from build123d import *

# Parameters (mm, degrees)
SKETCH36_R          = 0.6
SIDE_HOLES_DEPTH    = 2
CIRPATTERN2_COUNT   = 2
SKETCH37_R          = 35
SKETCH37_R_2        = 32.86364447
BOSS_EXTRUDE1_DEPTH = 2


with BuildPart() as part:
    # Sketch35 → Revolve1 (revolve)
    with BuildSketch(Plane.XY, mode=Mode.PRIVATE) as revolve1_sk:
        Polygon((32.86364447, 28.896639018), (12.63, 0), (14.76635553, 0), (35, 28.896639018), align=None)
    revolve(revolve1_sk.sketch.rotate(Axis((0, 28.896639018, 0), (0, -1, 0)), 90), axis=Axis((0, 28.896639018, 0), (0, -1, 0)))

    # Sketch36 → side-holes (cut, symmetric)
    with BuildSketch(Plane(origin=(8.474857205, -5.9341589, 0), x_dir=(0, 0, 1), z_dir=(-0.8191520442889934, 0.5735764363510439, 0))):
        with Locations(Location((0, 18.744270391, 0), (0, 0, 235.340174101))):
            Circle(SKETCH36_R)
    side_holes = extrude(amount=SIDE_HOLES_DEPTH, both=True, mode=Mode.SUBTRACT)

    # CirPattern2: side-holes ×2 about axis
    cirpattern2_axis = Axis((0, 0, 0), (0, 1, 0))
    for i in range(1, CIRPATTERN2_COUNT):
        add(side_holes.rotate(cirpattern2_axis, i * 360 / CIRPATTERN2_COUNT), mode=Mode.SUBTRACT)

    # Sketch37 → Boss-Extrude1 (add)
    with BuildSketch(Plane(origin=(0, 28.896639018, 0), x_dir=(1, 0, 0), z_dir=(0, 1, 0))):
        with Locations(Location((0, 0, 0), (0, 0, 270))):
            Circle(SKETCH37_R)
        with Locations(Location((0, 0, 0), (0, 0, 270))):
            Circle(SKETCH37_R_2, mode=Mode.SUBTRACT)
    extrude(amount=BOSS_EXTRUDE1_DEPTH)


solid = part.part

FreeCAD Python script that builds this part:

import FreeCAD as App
import Part
import Sketcher
from FreeCAD import Vector
Q = App.Units.Quantity


def add_polygon(sketch, points):
    """Adds a closed chain of lines whose ends are joined by coincident constraints."""
    first, n = sketch.GeometryCount, len(points)
    for a, b in zip(points, points[1:] + points[:1]):
        sketch.addGeometry(Part.LineSegment(App.Vector(*a, 0), App.Vector(*b, 0)), False)
    for i in range(n):
        sketch.addConstraint(Sketcher.Constraint("Coincident", first + i, 2, first + (i + 1) % n, 1))

doc = App.newDocument("Part")
body = doc.addObject("PartDesign::Body", "Body")

sketch1 = body.newObject("Sketcher::SketchObject", "Sketch")
sketch1.AttachmentSupport = (doc.getObject("XY_Plane"), [""])
sketch1.MapMode = "FlatFace"
add_polygon(sketch1, [(32.9, 28.9), (12.6, 0), (14.8, 0), (35, 28.9)])
sketch1.addConstraint([
    Sketcher.Constraint("Horizontal", 1),
    Sketcher.Constraint("Horizontal", 3),
    Sketcher.Constraint("PointOnObject", 0, 2, -1),
    Sketcher.Constraint("Parallel", 0, 2),
    Sketcher.Constraint("Angle", 0, Q("-125 deg")),
    Sketcher.Constraint("DistanceX", -1, 1, 2, 2, 35.0),
    Sketcher.Constraint("DistanceX", -1, 1, 0, 2, 12.63),
    Sketcher.Constraint("DistanceX", 1, 1, 1, 2, 2.136356),
])
revolution = body.newObject("PartDesign::Revolution", "Revolution")
revolution.Profile = sketch1
revolution.ReferenceAxis = (sketch1, ["V_Axis"])
revolution.Angle = 360

sketch2 = body.newObject("Sketcher::SketchObject", "Sketch001")
sketch2.Placement = App.Placement(Vector(8.474857, -5.934159, 0), App.Rotation(Vector(0, 0, 1), Vector(0.573576436, 0.819152044, 0), Vector(-0.819152044, 0.573576436, 0), "ZXY"))
sketch2.addGeometry(Part.Circle(Vector(0, 18.7, 0), Vector(0, 0, 1), 0.6), False)
sketch2.addConstraint([
    Sketcher.Constraint("PointOnObject", 0, 3, -2),
    Sketcher.Constraint("Diameter", 0, 1.2),
    Sketcher.Constraint("DistanceY", -1, 1, 0, 3, 18.74427),
])
pocket1 = body.newObject("PartDesign::Pocket", "Pocket")
pocket1.Profile = sketch2
pocket1.Length = 4
pocket1.Midplane = True
doc.recompute()

polarpattern = body.newObject("PartDesign::PolarPattern", "PolarPattern")
polarpattern.Originals = [pocket1]
polarpattern.Axis = (doc.getObject("Y_Axis"), [""])
polarpattern.Angle = 360
polarpattern.Occurrences = 2
body.Tip = polarpattern

sketch3 = body.newObject("Sketcher::SketchObject", "Sketch002")
sketch3.AttachmentSupport = (doc.getObject("XZ_Plane"), [""])
sketch3.MapMode = "FlatFace"
sketch3.AttachmentOffset = App.Placement(Vector(0, 0, -28.896639), App.Rotation())
sketch3.addGeometry([
    Part.Circle(Vector(0, 0, 0), Vector(0, 0, 1), 35),
    Part.Circle(Vector(0, 0, 0), Vector(0, 0, 1), 33),
], False)
sketch3.addConstraint([
    Sketcher.Constraint("Coincident", 0, 3, -1, 1),
    Sketcher.Constraint("Coincident", 1, 3, -1, 1),
    Sketcher.Constraint("Diameter", 0, 70.0),
    Sketcher.Constraint("Diameter", 1, 65.727289),
])
pad1 = body.newObject("PartDesign::Pad", "Pad")
pad1.Profile = sketch3
pad1.Length = 2
pad1.Reversed = True

doc.recompute()
